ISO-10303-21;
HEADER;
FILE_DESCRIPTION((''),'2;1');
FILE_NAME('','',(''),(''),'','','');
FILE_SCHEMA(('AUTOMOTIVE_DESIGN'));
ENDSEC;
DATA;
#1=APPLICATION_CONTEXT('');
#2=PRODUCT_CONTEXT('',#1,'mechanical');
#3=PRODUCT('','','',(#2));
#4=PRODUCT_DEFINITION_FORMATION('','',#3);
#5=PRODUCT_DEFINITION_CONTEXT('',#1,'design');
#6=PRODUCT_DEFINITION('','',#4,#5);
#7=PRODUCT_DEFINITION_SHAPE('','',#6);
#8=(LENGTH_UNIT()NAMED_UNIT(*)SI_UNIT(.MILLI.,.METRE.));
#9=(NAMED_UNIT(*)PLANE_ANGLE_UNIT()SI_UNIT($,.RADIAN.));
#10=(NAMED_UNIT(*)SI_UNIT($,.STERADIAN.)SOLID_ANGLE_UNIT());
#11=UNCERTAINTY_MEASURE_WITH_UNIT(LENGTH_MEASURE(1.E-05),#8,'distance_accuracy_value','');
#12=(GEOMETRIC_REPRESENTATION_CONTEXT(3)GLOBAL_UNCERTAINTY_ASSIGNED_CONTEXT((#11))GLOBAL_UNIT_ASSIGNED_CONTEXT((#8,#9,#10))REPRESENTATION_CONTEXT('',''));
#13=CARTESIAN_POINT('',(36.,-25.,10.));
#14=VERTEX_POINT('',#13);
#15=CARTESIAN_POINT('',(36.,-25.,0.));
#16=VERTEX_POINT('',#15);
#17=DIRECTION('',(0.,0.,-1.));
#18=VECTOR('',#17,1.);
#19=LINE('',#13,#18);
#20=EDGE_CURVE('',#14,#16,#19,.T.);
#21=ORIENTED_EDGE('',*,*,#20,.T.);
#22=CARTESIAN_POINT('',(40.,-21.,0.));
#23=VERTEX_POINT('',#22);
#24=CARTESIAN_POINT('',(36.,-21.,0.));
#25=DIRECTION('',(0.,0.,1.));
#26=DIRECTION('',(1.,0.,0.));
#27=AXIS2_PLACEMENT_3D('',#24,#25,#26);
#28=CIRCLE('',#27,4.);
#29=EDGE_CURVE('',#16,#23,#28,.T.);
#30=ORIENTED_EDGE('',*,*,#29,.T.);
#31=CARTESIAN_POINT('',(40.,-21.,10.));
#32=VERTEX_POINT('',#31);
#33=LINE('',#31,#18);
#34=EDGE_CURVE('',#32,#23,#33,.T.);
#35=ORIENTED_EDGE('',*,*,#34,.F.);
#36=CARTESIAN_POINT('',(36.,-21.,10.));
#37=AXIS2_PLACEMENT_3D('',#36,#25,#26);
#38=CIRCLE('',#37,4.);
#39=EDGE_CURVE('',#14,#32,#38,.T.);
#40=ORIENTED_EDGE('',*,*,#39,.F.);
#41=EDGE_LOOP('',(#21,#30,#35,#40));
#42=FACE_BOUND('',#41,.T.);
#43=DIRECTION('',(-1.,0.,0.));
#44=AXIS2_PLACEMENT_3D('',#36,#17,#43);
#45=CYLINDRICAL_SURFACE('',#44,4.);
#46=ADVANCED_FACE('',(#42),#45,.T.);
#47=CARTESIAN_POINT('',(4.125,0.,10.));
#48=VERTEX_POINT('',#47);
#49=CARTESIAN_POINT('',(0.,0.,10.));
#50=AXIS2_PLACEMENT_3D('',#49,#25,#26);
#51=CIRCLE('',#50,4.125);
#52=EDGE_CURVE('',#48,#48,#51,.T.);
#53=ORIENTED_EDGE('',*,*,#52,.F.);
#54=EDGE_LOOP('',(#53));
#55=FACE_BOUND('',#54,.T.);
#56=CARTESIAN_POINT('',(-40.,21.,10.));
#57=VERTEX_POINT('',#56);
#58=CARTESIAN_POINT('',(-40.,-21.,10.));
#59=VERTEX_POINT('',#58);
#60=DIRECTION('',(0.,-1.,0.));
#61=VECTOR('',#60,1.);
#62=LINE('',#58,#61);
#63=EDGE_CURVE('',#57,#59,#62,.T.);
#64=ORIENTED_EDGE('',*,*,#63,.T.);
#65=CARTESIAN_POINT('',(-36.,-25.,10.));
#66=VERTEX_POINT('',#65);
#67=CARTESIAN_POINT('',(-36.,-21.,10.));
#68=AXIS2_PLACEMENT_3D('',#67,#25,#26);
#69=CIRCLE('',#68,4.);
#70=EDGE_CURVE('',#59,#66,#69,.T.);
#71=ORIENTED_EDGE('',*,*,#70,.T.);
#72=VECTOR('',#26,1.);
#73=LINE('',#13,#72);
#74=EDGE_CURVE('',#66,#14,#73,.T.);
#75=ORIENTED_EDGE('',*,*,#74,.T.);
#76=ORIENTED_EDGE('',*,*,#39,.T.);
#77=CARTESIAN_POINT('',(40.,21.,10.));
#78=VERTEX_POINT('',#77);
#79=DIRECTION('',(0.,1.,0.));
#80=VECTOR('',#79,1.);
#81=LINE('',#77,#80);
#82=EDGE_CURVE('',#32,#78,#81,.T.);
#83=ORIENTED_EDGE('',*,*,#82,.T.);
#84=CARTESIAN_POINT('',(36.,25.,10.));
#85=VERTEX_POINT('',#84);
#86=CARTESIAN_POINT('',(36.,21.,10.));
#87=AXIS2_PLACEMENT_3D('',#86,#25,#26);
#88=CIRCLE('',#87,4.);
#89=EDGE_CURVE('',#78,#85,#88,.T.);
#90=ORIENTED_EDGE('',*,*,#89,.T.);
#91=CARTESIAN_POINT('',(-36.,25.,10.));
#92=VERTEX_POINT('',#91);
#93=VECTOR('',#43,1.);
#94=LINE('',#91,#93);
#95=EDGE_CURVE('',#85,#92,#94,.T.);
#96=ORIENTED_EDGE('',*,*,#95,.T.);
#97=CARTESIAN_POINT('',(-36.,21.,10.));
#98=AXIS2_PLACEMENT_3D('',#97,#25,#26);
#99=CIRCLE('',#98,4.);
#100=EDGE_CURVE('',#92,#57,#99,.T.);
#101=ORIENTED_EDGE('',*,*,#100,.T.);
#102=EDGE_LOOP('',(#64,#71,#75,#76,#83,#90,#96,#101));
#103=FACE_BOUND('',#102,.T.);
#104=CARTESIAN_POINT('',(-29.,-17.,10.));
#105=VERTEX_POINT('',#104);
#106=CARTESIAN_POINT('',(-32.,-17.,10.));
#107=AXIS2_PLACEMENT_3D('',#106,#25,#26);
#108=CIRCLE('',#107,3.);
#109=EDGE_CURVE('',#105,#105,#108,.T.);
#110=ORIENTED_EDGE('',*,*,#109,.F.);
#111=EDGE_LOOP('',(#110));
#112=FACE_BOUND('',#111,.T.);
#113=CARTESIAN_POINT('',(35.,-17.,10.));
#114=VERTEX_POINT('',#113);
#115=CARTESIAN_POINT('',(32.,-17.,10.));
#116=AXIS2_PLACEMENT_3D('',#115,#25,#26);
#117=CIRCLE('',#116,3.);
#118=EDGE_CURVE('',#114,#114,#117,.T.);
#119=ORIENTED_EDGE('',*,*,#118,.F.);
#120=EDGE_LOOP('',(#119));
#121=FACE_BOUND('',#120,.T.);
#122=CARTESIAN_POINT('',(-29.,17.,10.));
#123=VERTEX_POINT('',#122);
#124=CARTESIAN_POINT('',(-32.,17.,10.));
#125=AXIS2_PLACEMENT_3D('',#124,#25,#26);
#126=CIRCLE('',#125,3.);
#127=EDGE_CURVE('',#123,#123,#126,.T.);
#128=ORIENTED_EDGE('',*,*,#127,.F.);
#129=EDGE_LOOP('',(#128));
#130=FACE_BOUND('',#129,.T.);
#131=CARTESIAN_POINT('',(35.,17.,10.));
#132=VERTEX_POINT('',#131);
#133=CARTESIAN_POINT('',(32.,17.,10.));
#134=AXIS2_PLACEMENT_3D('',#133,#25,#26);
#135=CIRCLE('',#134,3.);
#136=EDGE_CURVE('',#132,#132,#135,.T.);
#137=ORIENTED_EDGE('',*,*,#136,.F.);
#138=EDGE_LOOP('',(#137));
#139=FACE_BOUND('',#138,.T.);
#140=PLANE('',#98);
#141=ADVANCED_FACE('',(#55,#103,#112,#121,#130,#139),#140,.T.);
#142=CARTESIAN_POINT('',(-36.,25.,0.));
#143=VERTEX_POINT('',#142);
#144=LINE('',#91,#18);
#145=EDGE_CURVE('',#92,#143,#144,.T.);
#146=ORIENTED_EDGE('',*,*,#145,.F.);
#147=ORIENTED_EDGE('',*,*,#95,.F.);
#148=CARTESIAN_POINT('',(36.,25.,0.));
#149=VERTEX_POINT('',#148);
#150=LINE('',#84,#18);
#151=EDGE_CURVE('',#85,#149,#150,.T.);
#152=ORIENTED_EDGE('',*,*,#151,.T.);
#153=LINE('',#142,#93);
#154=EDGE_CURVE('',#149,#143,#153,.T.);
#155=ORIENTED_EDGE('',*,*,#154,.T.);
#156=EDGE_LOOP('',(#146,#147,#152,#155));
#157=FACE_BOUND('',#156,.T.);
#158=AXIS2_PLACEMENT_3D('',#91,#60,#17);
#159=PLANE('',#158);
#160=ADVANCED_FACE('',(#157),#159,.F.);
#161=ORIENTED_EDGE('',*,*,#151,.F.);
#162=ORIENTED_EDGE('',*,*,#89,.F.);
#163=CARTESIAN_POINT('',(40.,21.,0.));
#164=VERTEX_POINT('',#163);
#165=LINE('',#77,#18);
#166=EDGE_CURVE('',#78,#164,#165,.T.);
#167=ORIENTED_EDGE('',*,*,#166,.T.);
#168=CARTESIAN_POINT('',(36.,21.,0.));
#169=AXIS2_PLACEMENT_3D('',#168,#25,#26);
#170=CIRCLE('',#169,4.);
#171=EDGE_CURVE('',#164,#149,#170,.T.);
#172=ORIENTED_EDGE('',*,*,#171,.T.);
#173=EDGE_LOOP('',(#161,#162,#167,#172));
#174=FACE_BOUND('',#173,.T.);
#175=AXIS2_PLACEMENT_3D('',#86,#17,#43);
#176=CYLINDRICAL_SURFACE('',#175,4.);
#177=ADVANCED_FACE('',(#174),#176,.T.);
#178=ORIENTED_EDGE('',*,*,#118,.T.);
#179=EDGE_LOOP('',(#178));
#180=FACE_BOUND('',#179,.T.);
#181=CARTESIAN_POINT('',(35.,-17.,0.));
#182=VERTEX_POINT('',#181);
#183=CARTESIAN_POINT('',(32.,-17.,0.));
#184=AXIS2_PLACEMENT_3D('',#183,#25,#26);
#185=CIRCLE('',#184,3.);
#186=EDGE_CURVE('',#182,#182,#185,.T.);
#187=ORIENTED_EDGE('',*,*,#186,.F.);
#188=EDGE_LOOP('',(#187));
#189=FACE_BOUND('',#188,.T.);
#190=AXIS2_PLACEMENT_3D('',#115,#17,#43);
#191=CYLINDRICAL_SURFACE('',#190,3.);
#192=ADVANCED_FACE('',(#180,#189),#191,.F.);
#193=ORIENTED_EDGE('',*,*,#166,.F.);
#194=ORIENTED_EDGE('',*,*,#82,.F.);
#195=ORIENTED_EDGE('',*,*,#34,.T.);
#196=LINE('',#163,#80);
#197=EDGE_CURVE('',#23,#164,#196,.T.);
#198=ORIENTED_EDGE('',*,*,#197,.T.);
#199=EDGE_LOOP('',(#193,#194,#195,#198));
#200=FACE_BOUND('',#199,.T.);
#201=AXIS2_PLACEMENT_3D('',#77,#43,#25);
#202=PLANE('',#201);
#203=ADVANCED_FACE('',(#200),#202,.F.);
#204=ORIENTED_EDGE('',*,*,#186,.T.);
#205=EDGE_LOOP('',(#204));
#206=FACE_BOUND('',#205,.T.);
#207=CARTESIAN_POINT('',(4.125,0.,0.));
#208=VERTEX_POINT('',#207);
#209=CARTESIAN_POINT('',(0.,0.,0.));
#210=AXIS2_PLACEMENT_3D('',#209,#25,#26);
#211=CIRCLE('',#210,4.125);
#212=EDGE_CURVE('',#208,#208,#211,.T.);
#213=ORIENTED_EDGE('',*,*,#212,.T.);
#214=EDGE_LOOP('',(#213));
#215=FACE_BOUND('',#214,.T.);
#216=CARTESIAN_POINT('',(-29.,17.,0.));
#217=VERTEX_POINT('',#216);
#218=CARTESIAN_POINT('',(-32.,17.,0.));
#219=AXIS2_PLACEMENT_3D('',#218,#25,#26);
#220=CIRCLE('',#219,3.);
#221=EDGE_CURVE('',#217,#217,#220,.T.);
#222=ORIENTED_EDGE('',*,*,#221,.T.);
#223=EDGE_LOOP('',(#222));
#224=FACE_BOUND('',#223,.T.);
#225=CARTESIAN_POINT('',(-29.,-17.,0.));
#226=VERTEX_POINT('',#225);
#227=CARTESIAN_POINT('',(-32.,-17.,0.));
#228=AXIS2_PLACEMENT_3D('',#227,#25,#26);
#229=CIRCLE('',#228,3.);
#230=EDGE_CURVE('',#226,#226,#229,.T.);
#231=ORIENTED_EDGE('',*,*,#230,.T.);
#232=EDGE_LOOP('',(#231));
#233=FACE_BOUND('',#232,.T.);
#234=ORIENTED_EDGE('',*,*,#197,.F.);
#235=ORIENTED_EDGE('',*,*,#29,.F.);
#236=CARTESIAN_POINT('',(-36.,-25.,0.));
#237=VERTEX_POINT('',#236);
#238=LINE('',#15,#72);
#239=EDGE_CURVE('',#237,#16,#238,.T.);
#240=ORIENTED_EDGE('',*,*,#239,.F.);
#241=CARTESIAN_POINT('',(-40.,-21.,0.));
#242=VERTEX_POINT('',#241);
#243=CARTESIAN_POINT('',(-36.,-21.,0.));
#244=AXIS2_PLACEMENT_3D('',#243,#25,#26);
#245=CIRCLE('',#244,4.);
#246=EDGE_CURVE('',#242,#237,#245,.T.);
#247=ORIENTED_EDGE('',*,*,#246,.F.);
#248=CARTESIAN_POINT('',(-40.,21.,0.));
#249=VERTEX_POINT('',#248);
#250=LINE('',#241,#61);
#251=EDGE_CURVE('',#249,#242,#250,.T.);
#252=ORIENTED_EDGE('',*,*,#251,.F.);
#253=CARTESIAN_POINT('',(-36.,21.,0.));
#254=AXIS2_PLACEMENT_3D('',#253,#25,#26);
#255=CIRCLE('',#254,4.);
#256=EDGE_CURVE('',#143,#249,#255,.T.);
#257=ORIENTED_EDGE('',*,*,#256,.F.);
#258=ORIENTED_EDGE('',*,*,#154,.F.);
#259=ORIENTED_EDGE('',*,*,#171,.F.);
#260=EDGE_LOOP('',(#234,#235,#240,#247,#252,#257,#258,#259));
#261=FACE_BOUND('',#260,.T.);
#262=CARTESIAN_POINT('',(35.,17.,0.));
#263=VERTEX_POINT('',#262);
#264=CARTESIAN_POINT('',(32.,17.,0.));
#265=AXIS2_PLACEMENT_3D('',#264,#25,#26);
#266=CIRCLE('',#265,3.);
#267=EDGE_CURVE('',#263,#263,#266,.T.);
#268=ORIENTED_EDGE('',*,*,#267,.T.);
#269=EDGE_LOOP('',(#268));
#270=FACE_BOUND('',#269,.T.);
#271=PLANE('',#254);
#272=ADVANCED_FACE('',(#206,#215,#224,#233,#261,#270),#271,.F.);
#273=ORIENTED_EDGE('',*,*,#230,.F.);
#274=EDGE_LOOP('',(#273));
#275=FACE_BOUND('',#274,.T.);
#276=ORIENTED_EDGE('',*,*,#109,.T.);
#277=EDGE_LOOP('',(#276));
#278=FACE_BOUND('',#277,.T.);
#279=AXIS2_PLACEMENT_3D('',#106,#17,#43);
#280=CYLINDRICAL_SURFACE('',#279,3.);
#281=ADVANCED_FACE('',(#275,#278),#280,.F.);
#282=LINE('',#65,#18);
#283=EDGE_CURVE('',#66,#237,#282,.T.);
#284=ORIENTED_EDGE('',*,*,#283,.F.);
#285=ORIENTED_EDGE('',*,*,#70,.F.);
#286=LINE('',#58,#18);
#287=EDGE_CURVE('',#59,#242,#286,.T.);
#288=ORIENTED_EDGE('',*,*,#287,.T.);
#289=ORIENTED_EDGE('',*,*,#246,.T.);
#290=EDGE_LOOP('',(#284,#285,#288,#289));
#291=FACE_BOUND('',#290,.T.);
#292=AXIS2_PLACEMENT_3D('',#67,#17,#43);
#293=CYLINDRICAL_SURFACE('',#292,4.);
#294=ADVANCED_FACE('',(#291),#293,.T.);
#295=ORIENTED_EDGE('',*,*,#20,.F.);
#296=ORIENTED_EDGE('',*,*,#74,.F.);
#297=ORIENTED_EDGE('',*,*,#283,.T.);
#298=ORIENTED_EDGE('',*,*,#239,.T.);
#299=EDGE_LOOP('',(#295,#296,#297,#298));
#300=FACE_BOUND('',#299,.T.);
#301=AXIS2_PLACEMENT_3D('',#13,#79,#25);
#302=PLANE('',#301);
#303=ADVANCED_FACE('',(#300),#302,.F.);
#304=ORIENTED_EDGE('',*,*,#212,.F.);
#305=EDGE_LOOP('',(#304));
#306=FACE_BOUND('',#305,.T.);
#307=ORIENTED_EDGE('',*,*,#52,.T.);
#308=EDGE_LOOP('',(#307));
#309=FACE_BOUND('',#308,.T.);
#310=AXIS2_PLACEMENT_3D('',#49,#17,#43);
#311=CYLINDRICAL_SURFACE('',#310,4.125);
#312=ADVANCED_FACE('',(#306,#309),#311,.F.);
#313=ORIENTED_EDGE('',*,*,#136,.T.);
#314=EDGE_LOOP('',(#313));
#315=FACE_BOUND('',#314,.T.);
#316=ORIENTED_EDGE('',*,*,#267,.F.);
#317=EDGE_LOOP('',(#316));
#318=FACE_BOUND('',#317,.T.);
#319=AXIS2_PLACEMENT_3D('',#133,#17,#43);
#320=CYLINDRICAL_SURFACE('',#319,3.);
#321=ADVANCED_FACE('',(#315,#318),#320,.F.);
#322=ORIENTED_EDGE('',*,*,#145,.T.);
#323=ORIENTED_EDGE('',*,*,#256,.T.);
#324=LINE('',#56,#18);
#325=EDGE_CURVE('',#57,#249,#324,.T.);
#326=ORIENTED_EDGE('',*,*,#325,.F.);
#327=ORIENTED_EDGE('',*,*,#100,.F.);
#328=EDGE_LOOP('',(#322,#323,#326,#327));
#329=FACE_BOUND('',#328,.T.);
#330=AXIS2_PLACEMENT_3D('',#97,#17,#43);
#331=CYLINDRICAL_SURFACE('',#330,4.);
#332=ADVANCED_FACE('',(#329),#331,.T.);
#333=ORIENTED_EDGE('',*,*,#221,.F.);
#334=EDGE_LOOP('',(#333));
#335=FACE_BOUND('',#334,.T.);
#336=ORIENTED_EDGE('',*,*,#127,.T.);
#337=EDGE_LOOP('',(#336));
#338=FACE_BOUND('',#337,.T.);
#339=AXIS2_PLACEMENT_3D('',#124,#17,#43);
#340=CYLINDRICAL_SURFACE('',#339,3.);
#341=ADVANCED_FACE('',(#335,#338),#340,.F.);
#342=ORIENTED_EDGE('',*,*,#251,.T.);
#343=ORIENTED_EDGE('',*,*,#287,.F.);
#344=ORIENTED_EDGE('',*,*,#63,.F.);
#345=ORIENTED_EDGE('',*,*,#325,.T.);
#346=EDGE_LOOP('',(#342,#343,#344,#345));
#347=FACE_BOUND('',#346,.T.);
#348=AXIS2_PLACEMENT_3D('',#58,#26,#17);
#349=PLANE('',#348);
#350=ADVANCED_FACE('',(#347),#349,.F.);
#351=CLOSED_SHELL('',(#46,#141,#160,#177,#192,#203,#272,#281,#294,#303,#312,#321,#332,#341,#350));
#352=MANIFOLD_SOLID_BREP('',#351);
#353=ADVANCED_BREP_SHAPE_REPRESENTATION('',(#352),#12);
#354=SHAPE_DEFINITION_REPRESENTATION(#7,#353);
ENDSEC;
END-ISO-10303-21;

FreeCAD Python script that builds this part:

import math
import FreeCAD as App
import Part
import Sketcher

doc = App.newDocument("Part")
body = doc.addObject("PartDesign::Body", "Body")

# Sketch on XY plane
sketch1 = body.newObject("Sketcher::SketchObject", "Sketch")
sketch1.AttachmentSupport = (doc.getObject("XY_Plane"), [""])
sketch1.MapMode = "FlatFace"
sketch1.addGeometry([
    Part.LineSegment(App.Vector(-36, -25, 0), App.Vector(36, -25, 0)),  # 0
    Part.ArcOfCircle(Part.Circle(App.Vector(36, -21, 0), App.Vector(0, 0, 1), 4), math.radians(-90), math.radians(0)),  # 1
    Part.LineSegment(App.Vector(40, -21, 0), App.Vector(40, 21, 0)),  # 2
    Part.ArcOfCircle(Part.Circle(App.Vector(36, 21, 0), App.Vector(0, 0, 1), 4), math.radians(0), math.radians(90)),  # 3
    Part.LineSegment(App.Vector(36, 25, 0), App.Vector(-36, 25, 0)),  # 4
    Part.ArcOfCircle(Part.Circle(App.Vector(-36, 21, 0), App.Vector(0, 0, 1), 4), math.radians(90), math.radians(180)),  # 5
    Part.LineSegment(App.Vector(-40, 21, 0), App.Vector(-40, -21, 0)),  # 6
    Part.ArcOfCircle(Part.Circle(App.Vector(-36, -21, 0), App.Vector(0, 0, 1), 4), math.radians(180), math.radians(270)),  # 7
    Part.Circle(App.Vector(32, -17, 0), App.Vector(0, 0, 1), 3),  # 8
    Part.Circle(App.Vector(-32, -17, 0), App.Vector(0, 0, 1), 3),  # 9
    Part.Circle(App.Vector(32, 17, 0), App.Vector(0, 0, 1), 3),  # 10
    Part.Circle(App.Vector(0, 0, 0), App.Vector(0, 0, 1), 4.125),  # 11
    Part.Circle(App.Vector(-32, 17, 0), App.Vector(0, 0, 1), 3),  # 12
], False)
sketch1.addConstraint([
    Sketcher.Constraint("Tangent", 0, 2, 1, 1),
    Sketcher.Constraint("Tangent", 1, 2, 2, 1),
    Sketcher.Constraint("Tangent", 2, 2, 3, 1),
    Sketcher.Constraint("Tangent", 3, 2, 4, 1),
    Sketcher.Constraint("Tangent", 4, 2, 5, 1),
    Sketcher.Constraint("Tangent", 5, 2, 6, 1),
    Sketcher.Constraint("Tangent", 6, 2, 7, 1),
    Sketcher.Constraint("Tangent", 7, 2, 0, 1),
    Sketcher.Constraint("Horizontal", 0),
    Sketcher.Constraint("Vertical", 2),
    Sketcher.Constraint("Horizontal", 4),
    Sketcher.Constraint("Vertical", 6),
    Sketcher.Constraint("Coincident", 11, 3, -1, 1),
    Sketcher.Constraint("Equal", 1, 3),
    Sketcher.Constraint("Equal", 3, 5),
    Sketcher.Constraint("Equal", 5, 7),
    Sketcher.Constraint("Equal", 8, 9),
    Sketcher.Constraint("Equal", 9, 10),
    Sketcher.Constraint("Equal", 10, 12),
    Sketcher.Constraint("Symmetric", 1, 3, 5, 3, -1, 1),
    Sketcher.Constraint("Symmetric", 9, 3, 10, 3, -1, 1),
    Sketcher.Constraint("Symmetric", 8, 3, 12, 3, -1, 1),
    Sketcher.Constraint("Symmetric", 8, 3, 9, 3, -2),
    Sketcher.Constraint("Diameter", 8, 6.0),
    Sketcher.Constraint("Radius", 1, 4.0),
    Sketcher.Constraint("Diameter", 11, 8.25),
    Sketcher.Constraint("DistanceX", 0, 1, 0, 2, 72.0),
    Sketcher.Constraint("DistanceY", 2, 1, 2, 2, 42.0),
    Sketcher.Constraint("DistanceX", -1, 1, 8, 3, 32.0),
    Sketcher.Constraint("DistanceY", 8, 3, -1, 1, 17.0),
])
pad1 = body.newObject("PartDesign::Pad", "Pad")
pad1.Profile = sketch1
pad1.Length = 10

doc.recompute()
